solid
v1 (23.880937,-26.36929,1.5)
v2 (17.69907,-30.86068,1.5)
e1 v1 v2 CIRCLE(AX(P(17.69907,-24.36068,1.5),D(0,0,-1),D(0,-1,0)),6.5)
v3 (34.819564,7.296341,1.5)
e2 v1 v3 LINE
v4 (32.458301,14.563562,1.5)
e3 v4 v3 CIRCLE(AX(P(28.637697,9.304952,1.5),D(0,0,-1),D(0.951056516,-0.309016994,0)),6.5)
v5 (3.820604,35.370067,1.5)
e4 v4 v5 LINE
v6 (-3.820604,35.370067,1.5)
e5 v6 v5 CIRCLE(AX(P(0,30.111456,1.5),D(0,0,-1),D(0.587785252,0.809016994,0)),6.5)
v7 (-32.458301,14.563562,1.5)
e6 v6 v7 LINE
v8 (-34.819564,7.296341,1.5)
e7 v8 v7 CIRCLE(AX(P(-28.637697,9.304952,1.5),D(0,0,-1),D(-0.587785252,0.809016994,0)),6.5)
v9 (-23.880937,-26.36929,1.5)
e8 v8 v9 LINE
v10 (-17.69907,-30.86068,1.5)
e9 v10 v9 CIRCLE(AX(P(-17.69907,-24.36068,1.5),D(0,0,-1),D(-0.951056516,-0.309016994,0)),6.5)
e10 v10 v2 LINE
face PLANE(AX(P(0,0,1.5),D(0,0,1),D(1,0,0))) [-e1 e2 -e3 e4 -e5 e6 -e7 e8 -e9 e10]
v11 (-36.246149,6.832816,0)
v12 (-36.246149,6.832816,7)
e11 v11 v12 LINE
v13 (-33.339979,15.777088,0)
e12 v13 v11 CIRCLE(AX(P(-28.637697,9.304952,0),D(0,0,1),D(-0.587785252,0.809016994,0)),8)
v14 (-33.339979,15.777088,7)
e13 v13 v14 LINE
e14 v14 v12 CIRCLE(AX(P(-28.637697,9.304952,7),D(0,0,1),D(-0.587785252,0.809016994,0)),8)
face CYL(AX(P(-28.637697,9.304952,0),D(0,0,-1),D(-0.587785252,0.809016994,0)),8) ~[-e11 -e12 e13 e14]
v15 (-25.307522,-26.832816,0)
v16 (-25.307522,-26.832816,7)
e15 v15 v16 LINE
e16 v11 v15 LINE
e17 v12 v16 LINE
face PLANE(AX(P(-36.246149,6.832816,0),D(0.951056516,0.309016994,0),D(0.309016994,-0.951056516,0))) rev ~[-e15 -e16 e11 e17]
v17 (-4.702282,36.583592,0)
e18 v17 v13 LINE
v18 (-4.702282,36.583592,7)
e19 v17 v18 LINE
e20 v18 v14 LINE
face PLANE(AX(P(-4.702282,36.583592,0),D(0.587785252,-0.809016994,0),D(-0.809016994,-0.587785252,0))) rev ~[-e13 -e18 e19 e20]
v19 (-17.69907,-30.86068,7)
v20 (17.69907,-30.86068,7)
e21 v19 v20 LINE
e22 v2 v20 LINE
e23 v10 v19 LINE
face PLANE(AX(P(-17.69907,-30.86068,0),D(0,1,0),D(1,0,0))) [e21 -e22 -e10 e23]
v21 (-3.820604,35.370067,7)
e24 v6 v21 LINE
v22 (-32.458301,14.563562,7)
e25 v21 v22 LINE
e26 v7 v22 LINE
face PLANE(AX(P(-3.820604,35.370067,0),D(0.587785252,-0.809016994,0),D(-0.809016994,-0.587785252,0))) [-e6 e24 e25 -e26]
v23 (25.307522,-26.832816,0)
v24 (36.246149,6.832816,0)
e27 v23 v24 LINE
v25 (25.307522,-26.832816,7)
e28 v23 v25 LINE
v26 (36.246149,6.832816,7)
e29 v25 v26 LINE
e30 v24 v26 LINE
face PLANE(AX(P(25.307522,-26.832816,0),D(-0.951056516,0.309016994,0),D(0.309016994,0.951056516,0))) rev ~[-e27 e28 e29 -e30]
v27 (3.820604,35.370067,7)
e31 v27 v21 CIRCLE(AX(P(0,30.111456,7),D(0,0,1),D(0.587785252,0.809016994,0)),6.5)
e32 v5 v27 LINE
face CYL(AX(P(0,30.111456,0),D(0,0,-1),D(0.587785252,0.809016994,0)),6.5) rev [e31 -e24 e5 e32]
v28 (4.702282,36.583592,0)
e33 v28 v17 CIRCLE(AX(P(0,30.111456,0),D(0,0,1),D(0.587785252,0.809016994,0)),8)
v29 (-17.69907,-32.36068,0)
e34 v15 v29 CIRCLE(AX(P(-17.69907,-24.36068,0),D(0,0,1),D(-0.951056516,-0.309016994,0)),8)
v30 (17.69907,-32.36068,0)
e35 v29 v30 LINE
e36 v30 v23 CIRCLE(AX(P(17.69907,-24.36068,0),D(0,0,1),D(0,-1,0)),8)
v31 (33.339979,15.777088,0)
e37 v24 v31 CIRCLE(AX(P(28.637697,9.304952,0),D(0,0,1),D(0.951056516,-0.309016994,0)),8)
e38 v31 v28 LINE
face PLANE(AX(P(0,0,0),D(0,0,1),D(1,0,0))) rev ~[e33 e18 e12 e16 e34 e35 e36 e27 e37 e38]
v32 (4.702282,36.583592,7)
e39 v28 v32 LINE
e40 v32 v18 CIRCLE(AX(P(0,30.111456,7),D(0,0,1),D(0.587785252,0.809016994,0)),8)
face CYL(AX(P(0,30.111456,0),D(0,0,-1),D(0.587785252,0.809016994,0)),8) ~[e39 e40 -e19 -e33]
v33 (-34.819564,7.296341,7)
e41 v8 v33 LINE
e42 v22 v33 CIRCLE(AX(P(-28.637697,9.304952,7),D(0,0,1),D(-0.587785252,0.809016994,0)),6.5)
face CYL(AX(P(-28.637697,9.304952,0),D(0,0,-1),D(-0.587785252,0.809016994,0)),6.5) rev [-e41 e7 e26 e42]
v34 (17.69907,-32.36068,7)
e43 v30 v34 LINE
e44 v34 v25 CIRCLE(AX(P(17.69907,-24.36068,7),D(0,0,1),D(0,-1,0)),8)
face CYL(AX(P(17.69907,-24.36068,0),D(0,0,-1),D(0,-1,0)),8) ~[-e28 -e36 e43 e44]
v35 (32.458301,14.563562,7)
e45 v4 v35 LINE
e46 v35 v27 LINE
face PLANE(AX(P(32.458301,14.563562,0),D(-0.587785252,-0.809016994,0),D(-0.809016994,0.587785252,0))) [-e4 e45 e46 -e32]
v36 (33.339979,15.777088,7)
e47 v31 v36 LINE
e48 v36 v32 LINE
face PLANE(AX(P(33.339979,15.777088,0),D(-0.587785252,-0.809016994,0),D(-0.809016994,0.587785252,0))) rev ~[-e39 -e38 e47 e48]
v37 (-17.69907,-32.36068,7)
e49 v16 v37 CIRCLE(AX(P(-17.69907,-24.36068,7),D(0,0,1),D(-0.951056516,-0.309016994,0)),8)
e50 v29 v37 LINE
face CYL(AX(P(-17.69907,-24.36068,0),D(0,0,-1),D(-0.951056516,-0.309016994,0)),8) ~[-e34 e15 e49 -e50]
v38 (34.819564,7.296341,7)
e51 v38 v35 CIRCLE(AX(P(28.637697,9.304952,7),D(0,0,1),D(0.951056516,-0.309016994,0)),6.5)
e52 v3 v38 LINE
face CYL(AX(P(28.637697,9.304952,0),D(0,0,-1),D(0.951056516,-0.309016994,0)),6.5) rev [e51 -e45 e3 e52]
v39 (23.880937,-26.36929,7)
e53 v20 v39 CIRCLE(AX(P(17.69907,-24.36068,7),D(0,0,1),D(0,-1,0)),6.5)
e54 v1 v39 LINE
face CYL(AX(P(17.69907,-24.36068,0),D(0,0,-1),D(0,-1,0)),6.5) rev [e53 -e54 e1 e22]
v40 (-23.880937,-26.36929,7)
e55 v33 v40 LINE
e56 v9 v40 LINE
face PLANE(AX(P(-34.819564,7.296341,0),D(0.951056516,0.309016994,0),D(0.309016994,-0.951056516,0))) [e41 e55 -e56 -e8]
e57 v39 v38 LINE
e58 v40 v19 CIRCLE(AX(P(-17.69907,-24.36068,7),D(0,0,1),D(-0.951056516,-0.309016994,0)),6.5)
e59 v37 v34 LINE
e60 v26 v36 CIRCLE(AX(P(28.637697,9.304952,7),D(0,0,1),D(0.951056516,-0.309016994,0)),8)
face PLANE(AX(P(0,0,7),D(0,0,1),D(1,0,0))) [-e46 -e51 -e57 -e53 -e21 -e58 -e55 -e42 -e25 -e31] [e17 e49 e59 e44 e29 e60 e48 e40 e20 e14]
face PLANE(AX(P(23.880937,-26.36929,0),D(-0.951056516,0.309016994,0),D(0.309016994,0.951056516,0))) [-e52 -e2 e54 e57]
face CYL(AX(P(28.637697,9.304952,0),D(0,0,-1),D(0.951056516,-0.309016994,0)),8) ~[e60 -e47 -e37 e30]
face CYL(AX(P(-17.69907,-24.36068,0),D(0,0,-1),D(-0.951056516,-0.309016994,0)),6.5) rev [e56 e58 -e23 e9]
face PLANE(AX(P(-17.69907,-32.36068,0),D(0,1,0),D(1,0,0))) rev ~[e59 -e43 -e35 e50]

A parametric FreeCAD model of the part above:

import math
import FreeCAD as App
import Part
import Sketcher
Q = App.Units.Quantity


def faces_at(feature, points):
    """Names of the faces that lie closest to the given points."""
    faces = feature.Shape.Faces
    near = lambda p: min(range(len(faces)), key=lambda i: faces[i].distToShape(Part.Vertex(*p))[0])
    return sorted({f"Face{near(p) + 1}" for p in points})

doc = App.newDocument("Part")
params = doc.addObject("Spreadsheet::Sheet", "Params")
for row, (alias, value) in enumerate([
    ("sketch1_radius", "8 mm"),
    ("pad1_length", "7 mm"),
    ("thickness_wall", "1.5 mm"),
], start=1):
    params.set(f"A{row}", alias)
    params.set(f"B{row}", "=" + value)
    params.setAlias(f"B{row}", alias)

body = doc.addObject("PartDesign::Body", "Body")

# Sketch on XY plane
sketch1 = body.newObject("Sketcher::SketchObject", "Sketch")
sketch1.AttachmentSupport = (doc.getObject("XY_Plane"), [""])
sketch1.MapMode = "FlatFace"
sketch1.addGeometry([
    Part.LineSegment(App.Vector(25.307522, -26.832816, 0), App.Vector(36.246149, 6.832816, 0)),  # 0
    Part.ArcOfCircle(Part.Circle(App.Vector(28.637697, 9.304952, 0), App.Vector(0, 0, 1), 8), math.radians(-18), math.radians(54)),  # 1
    Part.LineSegment(App.Vector(33.339979, 15.777088, 0), App.Vector(4.702282, 36.583592, 0)),  # 2
    Part.ArcOfCircle(Part.Circle(App.Vector(0, 30.111456, 0), App.Vector(0, 0, 1), 8), math.radians(54), math.radians(126)),  # 3
    Part.LineSegment(App.Vector(-4.702282, 36.583592, 0), App.Vector(-33.339979, 15.777088, 0)),  # 4
    Part.ArcOfCircle(Part.Circle(App.Vector(-28.637697, 9.304952, 0), App.Vector(0, 0, 1), 8), math.radians(126), math.radians(198)),  # 5
    Part.LineSegment(App.Vector(-36.246149, 6.832816, 0), App.Vector(-25.307522, -26.832816, 0)),  # 6
    Part.ArcOfCircle(Part.Circle(App.Vector(-17.69907, -24.36068, 0), App.Vector(0, 0, 1), 8), math.radians(-162), math.radians(-90)),  # 7
    Part.LineSegment(App.Vector(-17.69907, -32.36068, 0), App.Vector(17.69907, -32.36068, 0)),  # 8
    Part.ArcOfCircle(Part.Circle(App.Vector(17.69907, -24.36068, 0), App.Vector(0, 0, 1), 8), math.radians(-90), math.radians(-18)),  # 9
], False)
sketch1.addConstraint([
    Sketcher.Constraint("Tangent", 0, 2, 1, 1),
    Sketcher.Constraint("Tangent", 1, 2, 2, 1),
    Sketcher.Constraint("Tangent", 2, 2, 3, 1),
    Sketcher.Constraint("Tangent", 3, 2, 4, 1),
    Sketcher.Constraint("Tangent", 4, 2, 5, 1),
    Sketcher.Constraint("Tangent", 5, 2, 6, 1),
    Sketcher.Constraint("Tangent", 6, 2, 7, 1),
    Sketcher.Constraint("Tangent", 7, 2, 8, 1),
    Sketcher.Constraint("Tangent", 8, 2, 9, 1),
    Sketcher.Constraint("Tangent", 9, 2, 0, 1),
    Sketcher.Constraint("Horizontal", 8),
    Sketcher.Constraint("Equal", 1, 3),
    Sketcher.Constraint("Equal", 3, 5),
    Sketcher.Constraint("Equal", 5, 7),
    Sketcher.Constraint("Equal", 7, 9),
    Sketcher.Constraint("Symmetric", 1, 3, 5, 3, -2),
    Sketcher.Constraint("PointOnObject", 3, 3, -2),
    Sketcher.Constraint("Horizontal", 0, 2, 5, 2),
    Sketcher.Constraint("Equal", 0, 2),
    Sketcher.Constraint("Radius", 1, 8.0),
    Sketcher.Constraint("Angle", 0, Q("72 deg")),
    Sketcher.Constraint("Angle", 2, Q("144 deg")),
    Sketcher.Constraint("DistanceX", 8, 1, 8, 2, 35.39814),
    Sketcher.Constraint("DistanceY", -1, 1, 1, 3, 9.304952),
])
sketch1.setExpression("Constraints[19]", "Params.sketch1_radius")
pad1 = body.newObject("PartDesign::Pad", "Pad")
pad1.Profile = sketch1
pad1.setExpression("Length", "Params.pad1_length")
doc.recompute()

thickness = body.newObject("PartDesign::Thickness", "Thickness")
thickness.Base = (pad1, faces_at(pad1, [(0, 2.875, 7)]))
thickness.setExpression("Value", "Params.thickness_wall")
thickness.Reversed = True
thickness.Join = "Arc"

doc.recompute()
